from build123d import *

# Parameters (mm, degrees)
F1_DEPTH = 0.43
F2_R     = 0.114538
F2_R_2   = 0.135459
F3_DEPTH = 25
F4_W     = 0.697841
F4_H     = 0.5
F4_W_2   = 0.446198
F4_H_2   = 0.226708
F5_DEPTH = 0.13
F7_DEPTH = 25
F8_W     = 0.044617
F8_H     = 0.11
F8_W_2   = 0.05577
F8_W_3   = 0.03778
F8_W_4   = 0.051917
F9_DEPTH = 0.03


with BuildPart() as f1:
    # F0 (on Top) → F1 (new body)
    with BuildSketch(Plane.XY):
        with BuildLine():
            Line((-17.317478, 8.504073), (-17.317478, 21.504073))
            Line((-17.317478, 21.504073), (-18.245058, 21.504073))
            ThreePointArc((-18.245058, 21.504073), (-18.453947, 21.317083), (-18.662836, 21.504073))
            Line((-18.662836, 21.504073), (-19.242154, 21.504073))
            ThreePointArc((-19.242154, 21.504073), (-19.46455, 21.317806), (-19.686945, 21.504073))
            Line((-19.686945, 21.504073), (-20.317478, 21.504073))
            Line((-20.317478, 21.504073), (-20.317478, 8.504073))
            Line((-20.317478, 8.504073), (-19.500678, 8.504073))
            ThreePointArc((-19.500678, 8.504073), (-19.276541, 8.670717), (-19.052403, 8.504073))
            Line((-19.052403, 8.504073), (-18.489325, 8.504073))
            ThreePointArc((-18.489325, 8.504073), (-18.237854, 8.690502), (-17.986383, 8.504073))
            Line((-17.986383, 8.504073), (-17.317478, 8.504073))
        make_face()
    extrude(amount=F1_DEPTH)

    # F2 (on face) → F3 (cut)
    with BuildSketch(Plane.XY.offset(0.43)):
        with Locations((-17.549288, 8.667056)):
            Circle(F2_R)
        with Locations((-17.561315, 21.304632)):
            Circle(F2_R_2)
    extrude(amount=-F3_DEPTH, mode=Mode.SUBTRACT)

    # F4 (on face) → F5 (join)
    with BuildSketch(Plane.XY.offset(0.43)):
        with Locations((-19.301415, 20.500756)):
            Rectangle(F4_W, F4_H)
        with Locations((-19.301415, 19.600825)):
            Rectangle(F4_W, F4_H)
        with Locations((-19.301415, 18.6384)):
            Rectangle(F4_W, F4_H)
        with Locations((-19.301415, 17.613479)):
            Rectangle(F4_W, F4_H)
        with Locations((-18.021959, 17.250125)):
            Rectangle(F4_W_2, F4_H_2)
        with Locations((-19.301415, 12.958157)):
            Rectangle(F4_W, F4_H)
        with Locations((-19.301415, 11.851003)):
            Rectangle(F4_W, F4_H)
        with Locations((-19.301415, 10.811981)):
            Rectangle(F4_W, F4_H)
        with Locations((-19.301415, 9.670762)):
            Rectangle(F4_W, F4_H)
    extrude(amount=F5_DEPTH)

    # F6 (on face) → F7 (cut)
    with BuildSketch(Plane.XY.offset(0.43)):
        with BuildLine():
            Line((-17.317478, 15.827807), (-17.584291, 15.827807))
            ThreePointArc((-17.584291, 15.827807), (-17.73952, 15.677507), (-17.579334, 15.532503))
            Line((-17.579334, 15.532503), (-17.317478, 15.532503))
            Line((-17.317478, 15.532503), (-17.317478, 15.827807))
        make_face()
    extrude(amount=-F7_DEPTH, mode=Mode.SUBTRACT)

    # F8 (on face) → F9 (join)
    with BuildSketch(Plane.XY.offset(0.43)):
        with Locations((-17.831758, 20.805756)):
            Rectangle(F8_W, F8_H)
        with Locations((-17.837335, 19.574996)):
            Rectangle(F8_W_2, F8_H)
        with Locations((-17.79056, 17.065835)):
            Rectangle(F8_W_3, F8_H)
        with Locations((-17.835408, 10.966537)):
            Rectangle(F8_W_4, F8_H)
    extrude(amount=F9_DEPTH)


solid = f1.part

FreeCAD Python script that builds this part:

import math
import FreeCAD as App
import Part
import Sketcher

V = App.Vector

doc = App.newDocument("Part")
body = doc.addObject("PartDesign::Body", "Body")

# Sketch on XY plane
sketch1 = body.newObject("Sketcher::SketchObject", "Sketch")
sketch1.AttachmentSupport = (doc.getObject("XY_Plane"), [""])
sketch1.MapMode = "FlatFace"
sketch1.addGeometry(Part.LineSegment(V(-17.32, 8.5, 0), V(-17.32, 21.5, 0)), False)
sketch1.addGeometry(Part.LineSegment(V(-17.32, 21.5, 0), V(-18.25, 21.5, 0)), False)
sketch1.addGeometry(Part.ArcOfCircle(Part.Circle(V(-18.45, 21.53, 0), V(0, 0, 1), 0.21), math.radians(-174), math.radians(-6)), False)
sketch1.addGeometry(Part.LineSegment(V(-18.66, 21.5, 0), V(-19.24, 21.5, 0)), False)
sketch1.addGeometry(Part.ArcOfCircle(Part.Circle(V(-19.46, 21.54, 0), V(0, 0, 1), 0.23), math.radians(-170), math.radians(-10)), False)
sketch1.addGeometry(Part.LineSegment(V(-19.69, 21.5, 0), V(-20.32, 21.5, 0)), False)
sketch1.addGeometry(Part.LineSegment(V(-20.32, 21.5, 0), V(-20.32, 8.5, 0)), False)
sketch1.addGeometry(Part.LineSegment(V(-20.32, 8.5, 0), V(-19.5, 8.5, 0)), False)
sketch1.addGeometry(Part.ArcOfCircle(Part.Circle(V(-19.28, 8.44, 0), V(0, 0, 1), 0.23), math.radians(17), math.radians(163)), False)
sketch1.addGeometry(Part.LineSegment(V(-19.05, 8.5, 0), V(-18.49, 8.5, 0)), False)
sketch1.addGeometry(Part.ArcOfCircle(Part.Circle(V(-18.24, 8.43, 0), V(0, 0, 1), 0.26), math.radians(17), math.radians(163)), False)
sketch1.addGeometry(Part.LineSegment(V(-17.99, 8.5, 0), V(-17.32, 8.5, 0)), False)
sketch1.addConstraint(Sketcher.Constraint("Coincident", 0, 2, 1, 1))
sketch1.addConstraint(Sketcher.Constraint("Coincident", 1, 2, 2, 2))
sketch1.addConstraint(Sketcher.Constraint("Coincident", 2, 1, 3, 1))
sketch1.addConstraint(Sketcher.Constraint("Coincident", 3, 2, 4, 2))
sketch1.addConstraint(Sketcher.Constraint("Coincident", 4, 1, 5, 1))
sketch1.addConstraint(Sketcher.Constraint("Coincident", 5, 2, 6, 1))
sketch1.addConstraint(Sketcher.Constraint("Coincident", 6, 2, 7, 1))
sketch1.addConstraint(Sketcher.Constraint("Coincident", 7, 2, 8, 2))
sketch1.addConstraint(Sketcher.Constraint("Coincident", 8, 1, 9, 1))
sketch1.addConstraint(Sketcher.Constraint("Coincident", 9, 2, 10, 2))
sketch1.addConstraint(Sketcher.Constraint("Coincident", 10, 1, 11, 1))
sketch1.addConstraint(Sketcher.Constraint("Coincident", 11, 2, 0, 1))
sketch1.addConstraint(Sketcher.Constraint("Vertical", 0))
sketch1.addConstraint(Sketcher.Constraint("Horizontal", 1))
sketch1.addConstraint(Sketcher.Constraint("Horizontal", 3))
sketch1.addConstraint(Sketcher.Constraint("Horizontal", 5))
sketch1.addConstraint(Sketcher.Constraint("Vertical", 6))
sketch1.addConstraint(Sketcher.Constraint("Horizontal", 7))
sketch1.addConstraint(Sketcher.Constraint("Horizontal", 9))
sketch1.addConstraint(Sketcher.Constraint("Horizontal", 11))
sketch1.addConstraint(Sketcher.Constraint("Horizontal", 1, 2, 2, 1))
sketch1.addConstraint(Sketcher.Constraint("Horizontal", 3, 2, 4, 1))
sketch1.addConstraint(Sketcher.Constraint("Horizontal", 7, 2, 8, 1))
sketch1.addConstraint(Sketcher.Constraint("Horizontal", 9, 2, 10, 1))
sketch1.addConstraint(Sketcher.Constraint("DistanceY", 0, 1, 0, 2, 13.0))
sketch1.addConstraint(Sketcher.Constraint("Radius", 4, 0.225899))
sketch1.addConstraint(Sketcher.Constraint("Radius", 2, 0.210171))
sketch1.addConstraint(Sketcher.Constraint("DistanceX", 7, 1, 7, 2, 0.8168))
sketch1.addConstraint(Sketcher.Constraint("Radius", 8, 0.234055))
sketch1.addConstraint(Sketcher.Constraint("Radius", 10, 0.262817))
sketch1.addConstraint(Sketcher.Constraint("DistanceX", 4, 1, 2, 3, 1.232998))
sketch1.addConstraint(Sketcher.Constraint("DistanceX", 1, 2, 1, 1, 0.92758))
sketch1.addConstraint(Sketcher.Constraint("DistanceX", 3, 2, 3, 1, 0.579318))
sketch1.addConstraint(Sketcher.Constraint("DistanceX", 9, 1, 9, 2, 0.563078))
sketch1.addConstraint(Sketcher.Constraint("DistanceX", 5, 2, 5, 1, 0.630533))
sketch1.addConstraint(Sketcher.Constraint("DistanceX", 11, 1, 11, 2, 0.668905))
sketch1.addConstraint(Sketcher.Constraint("DistanceX", 4, 3, -1, 1, 19.46455))
sketch1.addConstraint(Sketcher.Constraint("DistanceX", 8, 3, -1, 1, 19.27654))
sketch1.addConstraint(Sketcher.Constraint("DistanceY", -1, 1, 8, 3, 8.436662))
sketch1.addConstraint(Sketcher.Constraint("DistanceX", 0, 2, -1, 1, 17.317478))
pad1 = body.newObject("PartDesign::Pad", "Pad")
pad1.Profile = sketch1
pad1.Length = 0.43

# Sketch on XY plane
sketch2 = body.newObject("Sketcher::SketchObject", "Sketch001")
sketch2.AttachmentSupport = (doc.getObject("XY_Plane"), [""])
sketch2.MapMode = "FlatFace"
sketch2.AttachmentOffset = App.Placement(V(0, 0, 0.43), App.Rotation())
sketch2.addGeometry(Part.Circle(V(-17.55, 8.67, 0), V(0, 0, 1), 0.11), False)
sketch2.addGeometry(Part.Circle(V(-17.56, 21.3, 0), V(0, 0, 1), 0.14), False)
sketch2.addConstraint(Sketcher.Constraint("Diameter", 0, 0.229076))
sketch2.addConstraint(Sketcher.Constraint("Diameter", 1, 0.270918))
sketch2.addConstraint(Sketcher.Constraint("DistanceX", 0, 3, -1, 1, 17.549288))
sketch2.addConstraint(Sketcher.Constraint("DistanceY", -1, 1, 0, 3, 8.667056))
sketch2.addConstraint(Sketcher.Constraint("DistanceX", 1, 3, -1, 1, 17.561315))
sketch2.addConstraint(Sketcher.Constraint("DistanceY", -1, 1, 1, 3, 21.304632))
pocket1 = body.newObject("PartDesign::Pocket", "Pocket")
pocket1.Profile = sketch2
pocket1.Length = 25

# Sketch on XY plane
sketch3 = body.newObject("Sketcher::SketchObject", "Sketch002")
sketch3.AttachmentSupport = (doc.getObject("XY_Plane"), [""])
sketch3.MapMode = "FlatFace"
sketch3.AttachmentOffset = App.Placement(V(0, 0, 0.43), App.Rotation())
sketch3.addGeometry(Part.LineSegment(V(-19.65, 20.75, 0), V(-19.65, 20.25, 0)), False)
sketch3.addGeometry(Part.LineSegment(V(-19.65, 20.25, 0), V(-18.95, 20.25, 0)), False)
sketch3.addGeometry(Part.LineSegment(V(-18.95, 20.25, 0), V(-18.95, 20.75, 0)), False)
sketch3.addGeometry(Part.LineSegment(V(-18.95, 20.75, 0), V(-19.65, 20.75, 0)), False)
sketch3.addGeometry(Part.LineSegment(V(-19.65, 19.85, 0), V(-19.65, 19.35, 0)), False)
sketch3.addGeometry(Part.LineSegment(V(-19.65, 19.35, 0), V(-18.95, 19.35, 0)), False)
sketch3.addGeometry(Part.LineSegment(V(-18.95, 19.35, 0), V(-18.95, 19.85, 0)), False)
sketch3.addGeometry(Part.LineSegment(V(-18.95, 19.85, 0), V(-19.65, 19.85, 0)), False)
sketch3.addGeometry(Part.LineSegment(V(-19.65, 18.89, 0), V(-19.65, 18.39, 0)), False)
sketch3.addGeometry(Part.LineSegment(V(-19.65, 18.39, 0), V(-18.95, 18.39, 0)), False)
sketch3.addGeometry(Part.LineSegment(V(-18.95, 18.39, 0), V(-18.95, 18.89, 0)), False)
sketch3.addGeometry(Part.LineSegment(V(-18.95, 18.89, 0), V(-19.65, 18.89, 0)), False)
sketch3.addGeometry(Part.LineSegment(V(-19.65, 17.86, 0), V(-19.65, 17.36, 0)), False)
sketch3.addGeometry(Part.LineSegment(V(-19.65, 17.36, 0), V(-18.95, 17.36, 0)), False)
sketch3.addGeometry(Part.LineSegment(V(-18.95, 17.36, 0), V(-18.95, 17.86, 0)), False)
sketch3.addGeometry(Part.LineSegment(V(-18.95, 17.86, 0), V(-19.65, 17.86, 0)), False)
sketch3.addGeometry(Part.LineSegment(V(-18.25, 17.36, 0), V(-18.25, 17.14, 0)), False)
sketch3.addGeometry(Part.LineSegment(V(-18.25, 17.14, 0), V(-17.8, 17.14, 0)), False)
sketch3.addGeometry(Part.LineSegment(V(-17.8, 17.14, 0), V(-17.8, 17.36, 0)), False)
sketch3.addGeometry(Part.LineSegment(V(-17.8, 17.36, 0), V(-18.25, 17.36, 0)), False)
sketch3.addGeometry(Part.LineSegment(V(-19.65, 13.21, 0), V(-19.65, 12.71, 0)), False)
sketch3.addGeometry(Part.LineSegment(V(-19.65, 12.71, 0), V(-18.95, 12.71, 0)), False)
sketch3.addGeometry(Part.LineSegment(V(-18.95, 12.71, 0), V(-18.95, 13.21, 0)), False)
sketch3.addGeometry(Part.LineSegment(V(-18.95, 13.21, 0), V(-19.65, 13.21, 0)), False)
sketch3.addGeometry(Part.LineSegment(V(-19.65, 12.1, 0), V(-19.65, 11.6, 0)), False)
sketch3.addGeometry(Part.LineSegment(V(-19.65, 11.6, 0), V(-18.95, 11.6, 0)), False)
sketch3.addGeometry(Part.LineSegment(V(-18.95, 11.6, 0), V(-18.95, 12.1, 0)), False)
sketch3.addGeometry(Part.LineSegment(V(-18.95, 12.1, 0), V(-19.65, 12.1, 0)), False)
sketch3.addGeometry(Part.LineSegment(V(-19.65, 11.06, 0), V(-19.65, 10.56, 0)), False)
sketch3.addGeometry(Part.LineSegment(V(-19.65, 10.56, 0), V(-18.95, 10.56, 0)), False)
sketch3.addGeometry(Part.LineSegment(V(-18.95, 10.56, 0), V(-18.95, 11.06, 0)), False)
sketch3.addGeometry(Part.LineSegment(V(-18.95, 11.06, 0), V(-19.65, 11.06, 0)), False)
sketch3.addGeometry(Part.LineSegment(V(-19.65, 9.92, 0), V(-19.65, 9.42, 0)), False)
sketch3.addGeometry(Part.LineSegment(V(-19.65, 9.42, 0), V(-18.95, 9.42, 0)), False)
sketch3.addGeometry(Part.LineSegment(V(-18.95, 9.42, 0), V(-18.95, 9.92, 0)), False)
sketch3.addGeometry(Part.LineSegment(V(-18.95, 9.92, 0), V(-19.65, 9.92, 0)), False)
sketch3.addConstraint(Sketcher.Constraint("Coincident", 0, 2, 1, 1))
sketch3.addConstraint(Sketcher.Constraint("Coincident", 1, 2, 2, 1))
sketch3.addConstraint(Sketcher.Constraint("Coincident", 2, 2, 3, 1))
sketch3.addConstraint(Sketcher.Constraint("Coincident", 3, 2, 0, 1))
sketch3.addConstraint(Sketcher.Constraint("Coincident", 4, 2, 5, 1))
sketch3.addConstraint(Sketcher.Constraint("Coincident", 5, 2, 6, 1))
sketch3.addConstraint(Sketcher.Constraint("Coincident", 6, 2, 7, 1))
sketch3.addConstraint(Sketcher.Constraint("Coincident", 7, 2, 4, 1))
sketch3.addConstraint(Sketcher.Constraint("Coincident", 8, 2, 9, 1))
sketch3.addConstraint(Sketcher.Constraint("Coincident", 9, 2, 10, 1))
sketch3.addConstraint(Sketcher.Constraint("Coincident", 10, 2, 11, 1))
sketch3.addConstraint(Sketcher.Constraint("Coincident", 11, 2, 8, 1))
sketch3.addConstraint(Sketcher.Constraint("Coincident", 12, 2, 13, 1))
sketch3.addConstraint(Sketcher.Constraint("Coincident", 13, 2, 14, 1))
sketch3.addConstraint(Sketcher.Constraint("Coincident", 14, 2, 15, 1))
sketch3.addConstraint(Sketcher.Constraint("Coincident", 15, 2, 12, 1))
sketch3.addConstraint(Sketcher.Constraint("Coincident", 16, 2, 17, 1))
sketch3.addConstraint(Sketcher.Constraint("Coincident", 17, 2, 18, 1))
sketch3.addConstraint(Sketcher.Constraint("Coincident", 18, 2, 19, 1))
sketch3.addConstraint(Sketcher.Constraint("Coincident", 19, 2, 16, 1))
sketch3.addConstraint(Sketcher.Constraint("Coincident", 20, 2, 21, 1))
sketch3.addConstraint(Sketcher.Constraint("Coincident", 21, 2, 22, 1))
sketch3.addConstraint(Sketcher.Constraint("Coincident", 22, 2, 23, 1))
sketch3.addConstraint(Sketcher.Constraint("Coincident", 23, 2, 20, 1))
sketch3.addConstraint(Sketcher.Constraint("Coincident", 24, 2, 25, 1))
sketch3.addConstraint(Sketcher.Constraint("Coincident", 25, 2, 26, 1))
sketch3.addConstraint(Sketcher.Constraint("Coincident", 26, 2, 27, 1))
sketch3.addConstraint(Sketcher.Constraint("Coincident", 27, 2, 24, 1))
sketch3.addConstraint(Sketcher.Constraint("Coincident", 28, 2, 29, 1))
sketch3.addConstraint(Sketcher.Constraint("Coincident", 29, 2, 30, 1))
sketch3.addConstraint(Sketcher.Constraint("Coincident", 30, 2, 31, 1))
sketch3.addConstraint(Sketcher.Constraint("Coincident", 31, 2, 28, 1))
sketch3.addConstraint(Sketcher.Constraint("Coincident", 32, 2, 33, 1))
sketch3.addConstraint(Sketcher.Constraint("Coincident", 33, 2, 34, 1))
sketch3.addConstraint(Sketcher.Constraint("Coincident", 34, 2, 35, 1))
sketch3.addConstraint(Sketcher.Constraint("Coincident", 35, 2, 32, 1))
sketch3.addConstraint(Sketcher.Constraint("Vertical", 0))
sketch3.addConstraint(Sketcher.Constraint("Horizontal", 1))
sketch3.addConstraint(Sketcher.Constraint("Vertical", 2))
sketch3.addConstraint(Sketcher.Constraint("Horizontal", 3))
sketch3.addConstraint(Sketcher.Constraint("Vertical", 4))
sketch3.addConstraint(Sketcher.Constraint("Horizontal", 5))
sketch3.addConstraint(Sketcher.Constraint("Vertical", 6))
sketch3.addConstraint(Sketcher.Constraint("Horizontal", 7))
sketch3.addConstraint(Sketcher.Constraint("Vertical", 8))
sketch3.addConstraint(Sketcher.Constraint("Horizontal", 9))
sketch3.addConstraint(Sketcher.Constraint("Vertical", 10))
sketch3.addConstraint(Sketcher.Constraint("Horizontal", 11))
sketch3.addConstraint(Sketcher.Constraint("Vertical", 12))
sketch3.addConstraint(Sketcher.Constraint("Horizontal", 13))
sketch3.addConstraint(Sketcher.Constraint("Vertical", 14))
sketch3.addConstraint(Sketcher.Constraint("Horizontal", 15))
sketch3.addConstraint(Sketcher.Constraint("Vertical", 16))
sketch3.addConstraint(Sketcher.Constraint("Horizontal", 17))
sketch3.addConstraint(Sketcher.Constraint("Vertical", 18))
sketch3.addConstraint(Sketcher.Constraint("Horizontal", 19))
sketch3.addConstraint(Sketcher.Constraint("Vertical", 20))
sketch3.addConstraint(Sketcher.Constraint("Horizontal", 21))
sketch3.addConstraint(Sketcher.Constraint("Vertical", 22))
sketch3.addConstraint(Sketcher.Constraint("Horizontal", 23))
sketch3.addConstraint(Sketcher.Constraint("Vertical", 24))
sketch3.addConstraint(Sketcher.Constraint("Horizontal", 25))
sketch3.addConstraint(Sketcher.Constraint("Vertical", 26))
sketch3.addConstraint(Sketcher.Constraint("Horizontal", 27))
sketch3.addConstraint(Sketcher.Constraint("Vertical", 28))
sketch3.addConstraint(Sketcher.Constraint("Horizontal", 29))
sketch3.addConstraint(Sketcher.Constraint("Vertical", 30))
sketch3.addConstraint(Sketcher.Constraint("Horizontal", 31))
sketch3.addConstraint(Sketcher.Constraint("Vertical", 32))
sketch3.addConstraint(Sketcher.Constraint("Horizontal", 33))
sketch3.addConstraint(Sketcher.Constraint("Vertical", 34))
sketch3.addConstraint(Sketcher.Constraint("Horizontal", 35))
sketch3.addConstraint(Sketcher.Constraint("Horizontal", 13, 2, 18, 2))
sketch3.addConstraint(Sketcher.Constraint("Vertical", 3, 2, 4, 2))
sketch3.addConstraint(Sketcher.Constraint("Vertical", 2, 2, 5, 2))
sketch3.addConstraint(Sketcher.Constraint("Vertical", 7, 2, 8, 2))
sketch3.addConstraint(Sketcher.Constraint("Vertical", 6, 2, 9, 2))
sketch3.addConstraint(Sketcher.Constraint("Vertical", 11, 2, 12, 2))
sketch3.addConstraint(Sketcher.Constraint("Vertical", 10, 2, 13, 2))
sketch3.addConstraint(Sketcher.Constraint("Vertical", 15, 2, 20, 2))
sketch3.addConstraint(Sketcher.Constraint("Vertical", 14, 2, 21, 2))
sketch3.addConstraint(Sketcher.Constraint("Vertical", 23, 2, 24, 2))
sketch3.addConstraint(Sketcher.Constraint("Vertical", 22, 2, 25, 2))
sketch3.addConstraint(Sketcher.Constraint("Vertical", 27, 2, 28, 2))
sketch3.addConstraint(Sketcher.Constraint("Vertical", 26, 2, 29, 2))
sketch3.addConstraint(Sketcher.Constraint("Vertical", 31, 2, 32, 2))
sketch3.addConstraint(Sketcher.Constraint("Vertical", 30, 2, 33, 2))
sketch3.addConstraint(Sketcher.Constraint("Equal", 2, 4))
sketch3.addConstraint(Sketcher.Constraint("Equal", 6, 8))
sketch3.addConstraint(Sketcher.Constraint("Equal", 10, 12))
sketch3.addConstraint(Sketcher.Constraint("Equal", 14, 20))
sketch3.addConstraint(Sketcher.Constraint("Equal", 22, 24))
sketch3.addConstraint(Sketcher.Constraint("Equal", 26, 28))
sketch3.addConstraint(Sketcher.Constraint("Equal", 30, 32))
sketch3.addConstraint(Sketcher.Constraint("DistanceY", 0, 2, 0, 1, 0.5))
sketch3.addConstraint(Sketcher.Constraint("DistanceX", 1, 1, 1, 2, 0.697841))
sketch3.addConstraint(Sketcher.Constraint("DistanceY", 16, 2, 16, 1, 0.226708))
sketch3.addConstraint(Sketcher.Constraint("DistanceY", -1, 1, 8, 2, 18.3884))
sketch3.addConstraint(Sketcher.Constraint("DistanceX", 17, 1, 17, 2, 0.446198))
sketch3.addConstraint(Sketcher.Constraint("DistanceY", -1, 1, 12, 2, 17.363479))
sketch3.addConstraint(Sketcher.Constraint("DistanceX", 16, 2, -1, 1, 18.245058))
sketch3.addConstraint(Sketcher.Constraint("DistanceY", -1, 1, 28, 2, 10.561981))
sketch3.addConstraint(Sketcher.Constraint("DistanceY", 4, 2, 0, 2, 0.899931))
sketch3.addConstraint(Sketcher.Constraint("DistanceY", 32, 2, 28, 2, 1.141219))
sketch3.addConstraint(Sketcher.Constraint("DistanceY", 32, 2, 24, 2, 2.180241))
sketch3.addConstraint(Sketcher.Constraint("DistanceX", 0, 2, -1, 1, 19.650336))
sketch3.addConstraint(Sketcher.Constraint("DistanceY", -1, 1, 0, 2, 20.250756))
sketch3.addConstraint(Sketcher.Constraint("DistanceY", -1, 1, 20, 2, 12.708157))
pad2 = body.newObject("PartDesign::Pad", "Pad001")
pad2.Profile = sketch3
pad2.Length = 0.13

# Sketch on XY plane
sketch4 = body.newObject("Sketcher::SketchObject", "Sketch003")
sketch4.AttachmentSupport = (doc.getObject("XY_Plane"), [""])
sketch4.MapMode = "FlatFace"
sketch4.AttachmentOffset = App.Placement(V(0, 0, 0.43), App.Rotation())
sketch4.addGeometry(Part.LineSegment(V(-17.32, 15.83, 0), V(-17.58, 15.83, 0)), False)
sketch4.addGeometry(Part.ArcOfCircle(Part.Circle(V(-17.59, 15.68, 0), V(0, 0, 1), 0.15), math.radians(87), math.radians(275)), False)
sketch4.addGeometry(Part.LineSegment(V(-17.58, 15.53, 0), V(-17.32, 15.53, 0)), False)
sketch4.addGeometry(Part.LineSegment(V(-17.32, 15.53, 0), V(-17.32, 15.83, 0)), False)
sketch4.addConstraint(Sketcher.Constraint("Coincident", 0, 2, 1, 1))
sketch4.addConstraint(Sketcher.Constraint("Coincident", 1, 2, 2, 1))
sketch4.addConstraint(Sketcher.Constraint("Coincident", 2, 2, 3, 1))
sketch4.addConstraint(Sketcher.Constraint("Coincident", 3, 2, 0, 1))
sketch4.addConstraint(Sketcher.Constraint("Horizontal", 0))
sketch4.addConstraint(Sketcher.Constraint("Horizontal", 2))
sketch4.addConstraint(Sketcher.Constraint("Vertical", 3))
sketch4.addConstraint(Sketcher.Constraint("Radius", 1, 0.147993))
sketch4.addConstraint(Sketcher.Constraint("DistanceX", 0, 2, 0, 1, 0.266813))
sketch4.addConstraint(Sketcher.Constraint("DistanceX", 2, 1, 2, 2, 0.261856))
sketch4.addConstraint(Sketcher.Constraint("DistanceY", 3, 1, 3, 2, 0.295304))
sketch4.addConstraint(Sketcher.Constraint("DistanceY", -1, 1, 1, 3, 15.679992))
sketch4.addConstraint(Sketcher.Constraint("DistanceX", 0, 2, -1, 1, 17.584291))
pocket2 = body.newObject("PartDesign::Pocket", "Pocket001")
pocket2.Profile = sketch4
pocket2.Length = 25

# Sketch on XY plane
sketch5 = body.newObject("Sketcher::SketchObject", "Sketch004")
sketch5.AttachmentSupport = (doc.getObject("XY_Plane"), [""])
sketch5.MapMode = "FlatFace"
sketch5.AttachmentOffset = App.Placement(V(0, 0, 0.43), App.Rotation())
sketch5.addGeometry(Part.LineSegment(V(-17.854, 20.861, 0), V(-17.854, 20.751, 0)), False)
sketch5.addGeometry(Part.LineSegment(V(-17.854, 20.751, 0), V(-17.809, 20.751, 0)), False)
sketch5.addGeometry(Part.LineSegment(V(-17.809, 20.751, 0), V(-17.809, 20.861, 0)), False)
sketch5.addGeometry(Part.LineSegment(V(-17.809, 20.861, 0), V(-17.854, 20.861, 0)), False)
sketch5.addGeometry(Part.LineSegment(V(-17.865, 19.63, 0), V(-17.865, 19.52, 0)), False)
sketch5.addGeometry(Part.LineSegment(V(-17.865, 19.52, 0), V(-17.809, 19.52, 0)), False)
sketch5.addGeometry(Part.LineSegment(V(-17.809, 19.52, 0), V(-17.809, 19.63, 0)), False)
sketch5.addGeometry(Part.LineSegment(V(-17.809, 19.63, 0), V(-17.865, 19.63, 0)), False)
sketch5.addGeometry(Part.LineSegment(V(-17.809, 17.121, 0), V(-17.809, 17.011, 0)), False)
sketch5.addGeometry(Part.LineSegment(V(-17.809, 17.011, 0), V(-17.772, 17.011, 0)), False)
sketch5.addGeometry(Part.LineSegment(V(-17.772, 17.011, 0), V(-17.772, 17.121, 0)), False)
sketch5.addGeometry(Part.LineSegment(V(-17.772, 17.121, 0), V(-17.809, 17.121, 0)), False)
sketch5.addGeometry(Part.LineSegment(V(-17.861, 11.022, 0), V(-17.861, 10.912, 0)), False)
sketch5.addGeometry(Part.LineSegment(V(-17.861, 10.912, 0), V(-17.809, 10.912, 0)), False)
sketch5.addGeometry(Part.LineSegment(V(-17.809, 10.912, 0), V(-17.809, 11.022, 0)), False)
sketch5.addGeometry(Part.LineSegment(V(-17.809, 11.022, 0), V(-17.861, 11.022, 0)), False)
sketch5.addConstraint(Sketcher.Constraint("Coincident", 0, 2, 1, 1))
sketch5.addConstraint(Sketcher.Constraint("Coincident", 1, 2, 2, 1))
sketch5.addConstraint(Sketcher.Constraint("Coincident", 2, 2, 3, 1))
sketch5.addConstraint(Sketcher.Constraint("Coincident", 3, 2, 0, 1))
sketch5.addConstraint(Sketcher.Constraint("Coincident", 4, 2, 5, 1))
sketch5.addConstraint(Sketcher.Constraint("Coincident", 5, 2, 6, 1))
sketch5.addConstraint(Sketcher.Constraint("Coincident", 6, 2, 7, 1))
sketch5.addConstraint(Sketcher.Constraint("Coincident", 7, 2, 4, 1))
sketch5.addConstraint(Sketcher.Constraint("Coincident", 8, 2, 9, 1))
sketch5.addConstraint(Sketcher.Constraint("Coincident", 9, 2, 10, 1))
sketch5.addConstraint(Sketcher.Constraint("Coincident", 10, 2, 11, 1))
sketch5.addConstraint(Sketcher.Constraint("Coincident", 11, 2, 8, 1))
sketch5.addConstraint(Sketcher.Constraint("Coincident", 12, 2, 13, 1))
sketch5.addConstraint(Sketcher.Constraint("Coincident", 13, 2, 14, 1))
sketch5.addConstraint(Sketcher.Constraint("Coincident", 14, 2, 15, 1))
sketch5.addConstraint(Sketcher.Constraint("Coincident", 15, 2, 12, 1))
sketch5.addConstraint(Sketcher.Constraint("Vertical", 0))
sketch5.addConstraint(Sketcher.Constraint("Horizontal", 1))
sketch5.addConstraint(Sketcher.Constraint("Vertical", 2))
sketch5.addConstraint(Sketcher.Constraint("Horizontal", 3))
sketch5.addConstraint(Sketcher.Constraint("Vertical", 4))
sketch5.addConstraint(Sketcher.Constraint("Horizontal", 5))
sketch5.addConstraint(Sketcher.Constraint("Vertical", 6))
sketch5.addConstraint(Sketcher.Constraint("Horizontal", 7))
sketch5.addConstraint(Sketcher.Constraint("Vertical", 8))
sketch5.addConstraint(Sketcher.Constraint("Horizontal", 9))
sketch5.addConstraint(Sketcher.Constraint("Vertical", 10))
sketch5.addConstraint(Sketcher.Constraint("Horizontal", 11))
sketch5.addConstraint(Sketcher.Constraint("Vertical", 12))
sketch5.addConstraint(Sketcher.Constraint("Horizontal", 13))
sketch5.addConstraint(Sketcher.Constraint("Vertical", 14))
sketch5.addConstraint(Sketcher.Constraint("Horizontal", 15))
sketch5.addConstraint(Sketcher.Constraint("Vertical", 2, 2, 5, 2))
sketch5.addConstraint(Sketcher.Constraint("Vertical", 6, 2, 8, 2))
sketch5.addConstraint(Sketcher.Constraint("Vertical", 11, 2, 13, 2))
sketch5.addConstraint(Sketcher.Constraint("Equal", 2, 4))
sketch5.addConstraint(Sketcher.Constraint("Equal", 6, 8))
sketch5.addConstraint(Sketcher.Constraint("Equal", 10, 12))
sketch5.addConstraint(Sketcher.Constraint("DistanceY", 0, 2, 0, 1, 0.11))
sketch5.addConstraint(Sketcher.Constraint("DistanceX", 5, 1, 5, 2, 0.05577))
sketch5.addConstraint(Sketcher.Constraint("DistanceX", 9, 1, 9, 2, 0.03778))
sketch5.addConstraint(Sketcher.Constraint("DistanceY", 12, 2, 8, 2, 6.099298))
sketch5.addConstraint(Sketcher.Constraint("DistanceX", 1, 1, 1, 2, 0.044617))
sketch5.addConstraint(Sketcher.Constraint("DistanceX", 13, 1, 13, 2, 0.051917))
sketch5.addConstraint(Sketcher.Constraint("DistanceX", 1, 2, -1, 1, 17.809449))
sketch5.addConstraint(Sketcher.Constraint("DistanceY", 4, 2, 0, 2, 1.23076))
sketch5.addConstraint(Sketcher.Constraint("DistanceY", 8, 2, 5, 2, 2.509161))
sketch5.addConstraint(Sketcher.Constraint("DistanceY", -1, 1, 0, 2, 20.750756))
pad3 = body.newObject("PartDesign::Pad", "Pad002")
pad3.Profile = sketch5
pad3.Length = 0.03

doc.recompute()
